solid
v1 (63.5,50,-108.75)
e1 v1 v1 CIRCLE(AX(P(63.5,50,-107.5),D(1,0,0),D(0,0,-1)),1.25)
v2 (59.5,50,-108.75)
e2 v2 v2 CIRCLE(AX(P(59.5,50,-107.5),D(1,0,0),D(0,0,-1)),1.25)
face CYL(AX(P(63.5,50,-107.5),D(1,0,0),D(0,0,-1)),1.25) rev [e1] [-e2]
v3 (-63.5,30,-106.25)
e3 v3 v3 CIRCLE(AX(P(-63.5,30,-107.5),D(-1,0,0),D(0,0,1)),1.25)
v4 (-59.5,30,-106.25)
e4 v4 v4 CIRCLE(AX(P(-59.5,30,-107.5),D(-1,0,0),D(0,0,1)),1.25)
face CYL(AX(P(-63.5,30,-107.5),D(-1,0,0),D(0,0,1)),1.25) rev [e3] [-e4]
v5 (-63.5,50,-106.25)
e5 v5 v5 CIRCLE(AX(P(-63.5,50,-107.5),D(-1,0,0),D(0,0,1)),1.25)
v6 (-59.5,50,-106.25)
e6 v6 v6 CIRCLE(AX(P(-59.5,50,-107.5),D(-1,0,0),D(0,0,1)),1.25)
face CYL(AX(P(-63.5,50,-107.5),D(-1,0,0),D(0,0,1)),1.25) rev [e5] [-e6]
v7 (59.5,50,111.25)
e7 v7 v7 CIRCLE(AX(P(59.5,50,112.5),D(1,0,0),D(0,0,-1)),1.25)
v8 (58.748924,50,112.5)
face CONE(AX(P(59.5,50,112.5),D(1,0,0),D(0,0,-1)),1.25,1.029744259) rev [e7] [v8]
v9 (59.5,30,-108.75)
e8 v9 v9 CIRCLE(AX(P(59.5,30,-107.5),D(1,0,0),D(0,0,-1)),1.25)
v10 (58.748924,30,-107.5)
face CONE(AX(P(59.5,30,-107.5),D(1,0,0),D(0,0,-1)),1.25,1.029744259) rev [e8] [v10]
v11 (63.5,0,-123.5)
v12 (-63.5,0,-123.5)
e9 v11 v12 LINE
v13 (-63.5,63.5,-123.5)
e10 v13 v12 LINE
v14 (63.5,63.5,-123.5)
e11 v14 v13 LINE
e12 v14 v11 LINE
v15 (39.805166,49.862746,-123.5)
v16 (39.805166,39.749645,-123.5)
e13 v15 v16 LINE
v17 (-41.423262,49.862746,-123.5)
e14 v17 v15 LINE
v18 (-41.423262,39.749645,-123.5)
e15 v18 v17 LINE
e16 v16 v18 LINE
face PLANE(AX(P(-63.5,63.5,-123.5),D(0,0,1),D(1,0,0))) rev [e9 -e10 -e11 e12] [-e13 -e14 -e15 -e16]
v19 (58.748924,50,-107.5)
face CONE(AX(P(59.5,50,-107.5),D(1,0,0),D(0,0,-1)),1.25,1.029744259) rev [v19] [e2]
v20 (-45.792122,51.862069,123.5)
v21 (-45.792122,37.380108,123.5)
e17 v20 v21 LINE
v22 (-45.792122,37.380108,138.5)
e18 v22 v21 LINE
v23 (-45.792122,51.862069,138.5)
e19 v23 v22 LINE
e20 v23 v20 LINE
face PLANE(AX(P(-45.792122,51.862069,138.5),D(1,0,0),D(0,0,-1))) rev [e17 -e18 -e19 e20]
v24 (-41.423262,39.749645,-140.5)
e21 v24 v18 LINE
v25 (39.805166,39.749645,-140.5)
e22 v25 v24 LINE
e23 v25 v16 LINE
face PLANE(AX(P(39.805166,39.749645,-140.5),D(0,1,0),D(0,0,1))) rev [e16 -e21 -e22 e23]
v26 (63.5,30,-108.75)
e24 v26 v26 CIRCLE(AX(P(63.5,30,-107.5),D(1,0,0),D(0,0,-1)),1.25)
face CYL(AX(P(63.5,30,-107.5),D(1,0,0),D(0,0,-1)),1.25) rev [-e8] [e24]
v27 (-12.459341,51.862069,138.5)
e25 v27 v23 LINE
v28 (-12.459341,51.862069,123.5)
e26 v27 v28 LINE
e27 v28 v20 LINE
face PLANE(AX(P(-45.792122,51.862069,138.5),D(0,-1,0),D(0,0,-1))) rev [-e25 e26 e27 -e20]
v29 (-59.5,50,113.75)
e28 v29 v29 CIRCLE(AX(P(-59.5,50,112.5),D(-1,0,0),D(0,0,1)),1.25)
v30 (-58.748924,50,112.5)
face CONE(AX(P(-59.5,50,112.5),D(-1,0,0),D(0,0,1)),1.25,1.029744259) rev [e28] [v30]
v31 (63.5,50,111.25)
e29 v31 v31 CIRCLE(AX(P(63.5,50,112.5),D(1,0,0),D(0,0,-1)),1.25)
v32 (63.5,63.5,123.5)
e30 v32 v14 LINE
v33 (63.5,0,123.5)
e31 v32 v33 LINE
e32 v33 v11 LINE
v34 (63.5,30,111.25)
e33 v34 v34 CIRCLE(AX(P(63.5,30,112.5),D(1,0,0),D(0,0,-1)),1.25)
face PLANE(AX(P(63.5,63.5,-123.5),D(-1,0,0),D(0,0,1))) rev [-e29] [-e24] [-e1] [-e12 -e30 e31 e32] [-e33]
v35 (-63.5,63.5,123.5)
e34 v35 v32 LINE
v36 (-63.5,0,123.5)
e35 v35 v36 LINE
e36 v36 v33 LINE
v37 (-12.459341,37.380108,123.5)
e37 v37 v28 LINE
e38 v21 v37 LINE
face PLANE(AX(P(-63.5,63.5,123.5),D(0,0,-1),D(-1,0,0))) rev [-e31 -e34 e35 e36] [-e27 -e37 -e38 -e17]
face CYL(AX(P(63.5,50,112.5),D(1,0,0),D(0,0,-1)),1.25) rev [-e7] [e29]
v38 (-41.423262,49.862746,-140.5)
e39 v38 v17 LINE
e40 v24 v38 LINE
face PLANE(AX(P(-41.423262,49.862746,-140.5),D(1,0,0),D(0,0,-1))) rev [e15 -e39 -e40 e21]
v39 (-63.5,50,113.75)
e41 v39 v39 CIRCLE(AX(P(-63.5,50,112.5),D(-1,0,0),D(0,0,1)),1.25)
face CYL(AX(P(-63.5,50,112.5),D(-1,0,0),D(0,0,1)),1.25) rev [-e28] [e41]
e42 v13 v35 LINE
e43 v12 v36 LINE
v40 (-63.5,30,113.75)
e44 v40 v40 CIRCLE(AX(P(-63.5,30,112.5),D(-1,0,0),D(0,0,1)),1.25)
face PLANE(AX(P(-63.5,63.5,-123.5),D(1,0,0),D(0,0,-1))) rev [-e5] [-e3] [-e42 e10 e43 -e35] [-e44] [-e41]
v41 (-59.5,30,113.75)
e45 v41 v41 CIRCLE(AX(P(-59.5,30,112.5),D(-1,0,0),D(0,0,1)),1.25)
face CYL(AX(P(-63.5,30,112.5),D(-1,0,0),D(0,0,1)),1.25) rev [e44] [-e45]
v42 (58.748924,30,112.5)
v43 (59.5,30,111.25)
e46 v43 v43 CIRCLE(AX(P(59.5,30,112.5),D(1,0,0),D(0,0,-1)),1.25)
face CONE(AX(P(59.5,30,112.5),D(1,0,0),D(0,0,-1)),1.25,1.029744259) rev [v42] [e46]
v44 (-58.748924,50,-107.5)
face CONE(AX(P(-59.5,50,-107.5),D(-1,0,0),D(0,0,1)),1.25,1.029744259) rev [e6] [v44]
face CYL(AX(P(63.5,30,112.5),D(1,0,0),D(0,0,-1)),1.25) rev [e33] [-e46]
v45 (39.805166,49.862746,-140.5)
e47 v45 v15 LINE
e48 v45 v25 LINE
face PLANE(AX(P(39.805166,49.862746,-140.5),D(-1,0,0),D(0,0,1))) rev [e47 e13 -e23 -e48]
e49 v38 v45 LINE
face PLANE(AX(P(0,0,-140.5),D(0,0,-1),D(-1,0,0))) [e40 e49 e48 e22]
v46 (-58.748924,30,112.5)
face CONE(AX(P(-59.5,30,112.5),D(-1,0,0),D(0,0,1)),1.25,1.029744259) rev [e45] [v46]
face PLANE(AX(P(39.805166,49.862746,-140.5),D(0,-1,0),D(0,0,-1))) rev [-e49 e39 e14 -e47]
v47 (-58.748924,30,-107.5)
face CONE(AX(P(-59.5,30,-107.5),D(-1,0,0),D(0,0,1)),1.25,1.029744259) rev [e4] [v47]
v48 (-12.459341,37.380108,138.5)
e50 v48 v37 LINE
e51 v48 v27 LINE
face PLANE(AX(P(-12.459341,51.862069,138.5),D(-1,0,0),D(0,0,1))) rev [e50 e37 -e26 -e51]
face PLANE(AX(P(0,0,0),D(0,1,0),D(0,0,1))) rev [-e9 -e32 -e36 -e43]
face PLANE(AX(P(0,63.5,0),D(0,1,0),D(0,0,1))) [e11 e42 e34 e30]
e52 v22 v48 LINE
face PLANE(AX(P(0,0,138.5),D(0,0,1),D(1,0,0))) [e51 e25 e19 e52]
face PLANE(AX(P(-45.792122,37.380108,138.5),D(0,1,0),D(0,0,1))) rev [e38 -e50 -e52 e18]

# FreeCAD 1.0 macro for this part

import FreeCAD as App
import Part
import Sketcher
from FreeCAD import Vector
Q = App.Units.Quantity

doc = App.newDocument("Part")
params = doc.addObject("Spreadsheet::Sheet", "Params")
for row, (alias, value) in enumerate([
    ("sketch1_width", "127 mm"),
    ("sketch1_height", "247 mm"),
    ("pad1_length", "63.5 mm"),
    ("sketch2_width", "4 mm"),
    ("sketch2_height", "1.25 mm"),
    ("groove_angle", "360 deg"),
    ("linearpattern_pitch", "220.90722 mm"),
    ("linearpattern2_pitch", "20 mm"),
    ("linearpattern3_pitch", "220 mm"),
    ("pad2_length", "15 mm"),
    ("pad3_length", "17 mm"),
    ("sketch5_width", "4 mm"),
    ("sketch5_height", "1.25 mm"),
    ("groove2_angle", "360 deg"),
    ("sketch6_width", "4 mm"),
    ("sketch6_height", "1.25 mm"),
    ("groove3_angle", "360 deg"),
    ("sketch7_width", "4 mm"),
    ("sketch7_height", "1.25 mm"),
    ("groove4_angle", "360 deg"),
], start=1):
    params.set(f"A{row}", alias)
    params.set(f"B{row}", "=" + value)
    params.setAlias(f"B{row}", alias)

body = doc.addObject("PartDesign::Body", "Body")

sketch1 = body.newObject("Sketcher::SketchObject", "Sketch")
sketch1.AttachmentSupport = (doc.getObject("XZ_Plane"), [""])
sketch1.MapMode = "FlatFace"
sketch1.addGeometry([
    Part.LineSegment(Vector(-64, -124, 0), Vector(-64, 124, 0)),
    Part.LineSegment(Vector(-64, 124, 0), Vector(64, 124, 0)),
    Part.LineSegment(Vector(64, 124, 0), Vector(64, -124, 0)),
    Part.LineSegment(Vector(64, -124, 0), Vector(-64, -124, 0)),
], False)
sketch1.addConstraint([
    Sketcher.Constraint("Coincident", 0, 2, 1, 1),
    Sketcher.Constraint("Coincident", 1, 2, 2, 1),
    Sketcher.Constraint("Coincident", 2, 2, 3, 1),
    Sketcher.Constraint("Coincident", 3, 2, 0, 1),
    Sketcher.Constraint("Vertical", 0),
    Sketcher.Constraint("Horizontal", 1),
    Sketcher.Constraint("Vertical", 2),
    Sketcher.Constraint("Horizontal", 3),
    Sketcher.Constraint("Symmetric", 0, 2, 2, 2, -1, 1),
    Sketcher.Constraint("DistanceX", 1, 1, 1, 2, 127.0),
    Sketcher.Constraint("DistanceY", 0, 1, 0, 2, 247.0),
])
sketch1.setExpression("Constraints[9]", "Params.sketch1_width")
sketch1.setExpression("Constraints[10]", "Params.sketch1_height")
pad1 = body.newObject("PartDesign::Pad", "Pad")
pad1.Profile = sketch1
pad1.setExpression("Length", "Params.pad1_length")
pad1.Reversed = True

sketch2 = body.newObject("Sketcher::SketchObject", "Sketch001")
sketch2.AttachmentSupport = (doc.getObject("XZ_Plane"), [""])
sketch2.MapMode = "FlatFace"
sketch2.AttachmentOffset = App.Placement(Vector(0, 0, -50), App.Rotation())
sketch2.addGeometry([
    Part.LineSegment(Vector(58.7, 112.5, 0), Vector(63.5, 112.5, 0)),
    Part.LineSegment(Vector(63.5, 112.5, 0), Vector(63.5, 111.2, 0)),
    Part.LineSegment(Vector(63.5, 111.2, 0), Vector(59.5, 111.2, 0)),
    Part.LineSegment(Vector(59.5, 111.2, 0), Vector(58.7, 112.5, 0)),
], False)
sketch2.addGeometry(Part.LineSegment(Vector(63.5, 112.5, 0), Vector(58.7, 112.5, 0)), True)
sketch2.addConstraint([
    Sketcher.Constraint("Coincident", 0, 2, 1, 1),
    Sketcher.Constraint("Coincident", 1, 2, 2, 1),
    Sketcher.Constraint("Coincident", 2, 2, 3, 1),
    Sketcher.Constraint("Coincident", 3, 2, 0, 1),
    Sketcher.Constraint("Horizontal", 0),
    Sketcher.Constraint("Vertical", 1),
    Sketcher.Constraint("Horizontal", 2),
    Sketcher.Constraint("Horizontal", 4),
    Sketcher.Constraint("Coincident", 4, 1, 0, 2),
    Sketcher.Constraint("Equal", 0, 4),
    Sketcher.Constraint("DistanceX", 2, 2, 2, 1, 4.0),
    Sketcher.Constraint("Angle", 3, Q("121 deg")),
    Sketcher.Constraint("DistanceY", 1, 2, 1, 1, 1.25),
    Sketcher.Constraint("DistanceX", -1, 1, 0, 2, 63.5),
    Sketcher.Constraint("DistanceY", -1, 1, 0, 2, 112.5),
])
sketch2.setExpression("Constraints[10]", "Params.sketch2_width")
sketch2.setExpression("Constraints[12]", "Params.sketch2_height")
groove = body.newObject("PartDesign::Groove", "Groove")
groove.Profile = sketch2
groove.ReferenceAxis = (sketch2, ["Axis0"])
groove.setExpression("Angle", "Params.groove_angle")
doc.recompute()

datumline = body.newObject("PartDesign::Line", "DatumLine")
datumline.Placement = App.Placement(Vector(0, 0, 0), App.Rotation(Vector(0, 0, 1), Vector(0, -0.090535746, -0.995893206)))
linearpattern = body.newObject("PartDesign::LinearPattern", "LinearPattern")
linearpattern.Originals = [groove]
linearpattern.Direction = (datumline, [""])
linearpattern.Mode = "offset"
linearpattern.setExpression("Offset", "Params.linearpattern_pitch")
linearpattern.Occurrences = 2
body.Tip = linearpattern
doc.recompute()

linearpattern2 = body.newObject("PartDesign::LinearPattern", "LinearPattern001")
linearpattern2.Originals = [groove]
linearpattern2.Direction = (doc.getObject("Y_Axis"), [""])
linearpattern2.Mode = "offset"
linearpattern2.setExpression("Offset", "Params.linearpattern2_pitch")
linearpattern2.Occurrences = 2
linearpattern2.Reversed = True
body.Tip = linearpattern2
doc.recompute()

linearpattern3 = body.newObject("PartDesign::LinearPattern", "LinearPattern002")
linearpattern3.Originals = [groove]
linearpattern3.Direction = (doc.getObject("Z_Axis"), [""])
linearpattern3.Mode = "offset"
linearpattern3.setExpression("Offset", "Params.linearpattern3_pitch")
linearpattern3.Occurrences = 2
linearpattern3.Reversed = True
body.Tip = linearpattern3

sketch3 = body.newObject("Sketcher::SketchObject", "Sketch002")
sketch3.AttachmentSupport = (doc.getObject("XY_Plane"), [""])
sketch3.MapMode = "FlatFace"
sketch3.AttachmentOffset = App.Placement(Vector(0, 0, 123.5), App.Rotation())
sketch3.addGeometry([
    Part.LineSegment(Vector(-46, 52, 0), Vector(-46, 37, 0)),
    Part.LineSegment(Vector(-46, 37, 0), Vector(-12, 37, 0)),
    Part.LineSegment(Vector(-12, 37, 0), Vector(-12, 52, 0)),
    Part.LineSegment(Vector(-12, 52, 0), Vector(-46, 52, 0)),
], False)
sketch3.addConstraint([
    Sketcher.Constraint("Coincident", 0, 2, 1, 1),
    Sketcher.Constraint("Coincident", 1, 2, 2, 1),
    Sketcher.Constraint("Coincident", 2, 2, 3, 1),
    Sketcher.Constraint("Coincident", 3, 2, 0, 1),
    Sketcher.Constraint("Vertical", 0),
    Sketcher.Constraint("Horizontal", 1),
    Sketcher.Constraint("Vertical", 2),
    Sketcher.Constraint("Horizontal", 3),
    Sketcher.Constraint("DistanceX", 1, 1, 1, 2, 33.332781),
    Sketcher.Constraint("DistanceY", 0, 2, 0, 1, 14.481961),
    Sketcher.Constraint("DistanceX", 0, 2, -1, 1, 45.792122),
    Sketcher.Constraint("DistanceY", -1, 1, 0, 2, 37.380108),
])
pad2 = body.newObject("PartDesign::Pad", "Pad001")
pad2.Profile = sketch3
pad2.setExpression("Length", "Params.pad2_length")

sketch4 = body.newObject("Sketcher::SketchObject", "Sketch003")
sketch4.AttachmentSupport = (doc.getObject("XY_Plane"), [""])
sketch4.MapMode = "FlatFace"
sketch4.AttachmentOffset = App.Placement(Vector(0, 0, -123.5), App.Rotation())
sketch4.addGeometry([
    Part.LineSegment(Vector(40, 50, 0), Vector(40, 40, 0)),
    Part.LineSegment(Vector(40, 40, 0), Vector(-41, 40, 0)),
    Part.LineSegment(Vector(-41, 40, 0), Vector(-41, 50, 0)),
    Part.LineSegment(Vector(-41, 50, 0), Vector(40, 50, 0)),
], False)
sketch4.addConstraint([
    Sketcher.Constraint("Coincident", 0, 2, 1, 1),
    Sketcher.Constraint("Coincident", 1, 2, 2, 1),
    Sketcher.Constraint("Coincident", 2, 2, 3, 1),
    Sketcher.Constraint("Coincident", 3, 2, 0, 1),
    Sketcher.Constraint("Vertical", 0),
    Sketcher.Constraint("Horizontal", 1),
    Sketcher.Constraint("Vertical", 2),
    Sketcher.Constraint("Horizontal", 3),
    Sketcher.Constraint("DistanceY", 0, 2, 0, 1, 10.113101),
    Sketcher.Constraint("DistanceX", 1, 2, 1, 1, 81.228428),
    Sketcher.Constraint("DistanceX", -1, 1, 0, 2, 39.805166),
    Sketcher.Constraint("DistanceY", -1, 1, 0, 2, 39.749645),
])
pad3 = body.newObject("PartDesign::Pad", "Pad002")
pad3.Profile = sketch4
pad3.setExpression("Length", "Params.pad3_length")
pad3.Reversed = True
doc.recompute()

mirrored = body.newObject("PartDesign::Mirrored", "Mirrored")
mirrored.Originals = [groove]
mirrored.MirrorPlane = (doc.getObject("YZ_Plane"), [""])
body.Tip = mirrored

sketch5 = body.newObject("Sketcher::SketchObject", "Sketch004")
sketch5.AttachmentSupport = (doc.getObject("XZ_Plane"), [""])
sketch5.MapMode = "FlatFace"
sketch5.AttachmentOffset = App.Placement(Vector(0, 0, -30), App.Rotation())
sketch5.addGeometry([
    Part.LineSegment(Vector(-63.5, -107.5, 0), Vector(-58.7, -107.5, 0)),
    Part.LineSegment(Vector(-58.7, -107.5, 0), Vector(-59.5, -108.8, 0)),
    Part.LineSegment(Vector(-59.5, -108.8, 0), Vector(-63.5, -108.8, 0)),
    Part.LineSegment(Vector(-63.5, -108.8, 0), Vector(-63.5, -107.5, 0)),
], False)
sketch5.addGeometry(Part.LineSegment(Vector(-58.7, -107.5, 0), Vector(-63.5, -107.5, 0)), True)
sketch5.addConstraint([
    Sketcher.Constraint("Coincident", 0, 2, 1, 1),
    Sketcher.Constraint("Coincident", 1, 2, 2, 1),
    Sketcher.Constraint("Coincident", 2, 2, 3, 1),
    Sketcher.Constraint("Coincident", 3, 2, 0, 1),
    Sketcher.Constraint("Horizontal", 0),
    Sketcher.Constraint("Horizontal", 2),
    Sketcher.Constraint("Vertical", 3),
    Sketcher.Constraint("Horizontal", 4),
    Sketcher.Constraint("Coincident", 4, 1, 0, 2),
    Sketcher.Constraint("Vertical", 2, 2, 4, 2),
    Sketcher.Constraint("DistanceX", 2, 2, 2, 1, 4.0),
    Sketcher.Constraint("Angle", 1, Q("-121 deg")),
    Sketcher.Constraint("DistanceY", 3, 1, 3, 2, 1.25),
    Sketcher.Constraint("DistanceY", 0, 2, -1, 1, 107.5),
    Sketcher.Constraint("DistanceX", 1, 2, -1, 1, 59.5),
])
sketch5.setExpression("Constraints[10]", "Params.sketch5_width")
sketch5.setExpression("Constraints[12]", "Params.sketch5_height")
groove2 = body.newObject("PartDesign::Groove", "Groove001")
groove2.Profile = sketch5
groove2.ReferenceAxis = (sketch5, ["Axis0"])
groove2.setExpression("Angle", "Params.groove2_angle")

sketch6 = body.newObject("Sketcher::SketchObject", "Sketch005")
sketch6.AttachmentSupport = (doc.getObject("XZ_Plane"), [""])
sketch6.MapMode = "FlatFace"
sketch6.AttachmentOffset = App.Placement(Vector(0, 0, -30), App.Rotation())
sketch6.addGeometry([
    Part.LineSegment(Vector(-63.5, 112.5, 0), Vector(-58.7, 112.5, 0)),
    Part.LineSegment(Vector(-58.7, 112.5, 0), Vector(-59.5, 111.2, 0)),
    Part.LineSegment(Vector(-59.5, 111.2, 0), Vector(-63.5, 111.2, 0)),
    Part.LineSegment(Vector(-63.5, 111.2, 0), Vector(-63.5, 112.5, 0)),
], False)
sketch6.addGeometry(Part.LineSegment(Vector(-58.7, 112.5, 0), Vector(-63.5, 112.5, 0)), True)
sketch6.addConstraint([
    Sketcher.Constraint("Coincident", 0, 2, 1, 1),
    Sketcher.Constraint("Coincident", 1, 2, 2, 1),
    Sketcher.Constraint("Coincident", 2, 2, 3, 1),
    Sketcher.Constraint("Coincident", 3, 2, 0, 1),
    Sketcher.Constraint("Horizontal", 0),
    Sketcher.Constraint("Horizontal", 2),
    Sketcher.Constraint("Vertical", 3),
    Sketcher.Constraint("Horizontal", 4),
    Sketcher.Constraint("Coincident", 4, 1, 0, 2),
    Sketcher.Constraint("Vertical", 2, 2, 4, 2),
    Sketcher.Constraint("DistanceX", 2, 2, 2, 1, 4.0),
    Sketcher.Constraint("Angle", 1, Q("-121 deg")),
    Sketcher.Constraint("DistanceY", 3, 1, 3, 2, 1.25),
    Sketcher.Constraint("DistanceY", -1, 1, 0, 2, 112.5),
    Sketcher.Constraint("DistanceX", 1, 2, -1, 1, 59.5),
])
sketch6.setExpression("Constraints[10]", "Params.sketch6_width")
sketch6.setExpression("Constraints[12]", "Params.sketch6_height")
groove3 = body.newObject("PartDesign::Groove", "Groove002")
groove3.Profile = sketch6
groove3.ReferenceAxis = (sketch6, ["Axis0"])
groove3.setExpression("Angle", "Params.groove3_angle")

sketch7 = body.newObject("Sketcher::SketchObject", "Sketch006")
sketch7.AttachmentSupport = (doc.getObject("XZ_Plane"), [""])
sketch7.MapMode = "FlatFace"
sketch7.AttachmentOffset = App.Placement(Vector(0, 0, -50), App.Rotation())
sketch7.addGeometry([
    Part.LineSegment(Vector(-63.5, -107.5, 0), Vector(-58.7, -107.5, 0)),
    Part.LineSegment(Vector(-58.7, -107.5, 0), Vector(-59.5, -108.8, 0)),
    Part.LineSegment(Vector(-59.5, -108.8, 0), Vector(-63.5, -108.8, 0)),
    Part.LineSegment(Vector(-63.5, -108.8, 0), Vector(-63.5, -107.5, 0)),
], False)
sketch7.addGeometry(Part.LineSegment(Vector(-58.7, -107.5, 0), Vector(-63.5, -107.5, 0)), True)
sketch7.addConstraint([
    Sketcher.Constraint("Coincident", 0, 2, 1, 1),
    Sketcher.Constraint("Coincident", 1, 2, 2, 1),
    Sketcher.Constraint("Coincident", 2, 2, 3, 1),
    Sketcher.Constraint("Coincident", 3, 2, 0, 1),
    Sketcher.Constraint("Horizontal", 0),
    Sketcher.Constraint("Horizontal", 2),
    Sketcher.Constraint("Vertical", 3),
    Sketcher.Constraint("Horizontal", 4),
    Sketcher.Constraint("Coincident", 4, 1, 0, 2),
    Sketcher.Constraint("Vertical", 2, 2, 4, 2),
    Sketcher.Constraint("DistanceX", 2, 2, 2, 1, 4.0),
    Sketcher.Constraint("Angle", 1, Q("-121 deg")),
    Sketcher.Constraint("DistanceY", 3, 1, 3, 2, 1.25),
    Sketcher.Constraint("DistanceY", 0, 2, -1, 1, 107.5),
    Sketcher.Constraint("DistanceX", 1, 2, -1, 1, 59.5),
])
sketch7.setExpression("Constraints[10]", "Params.sketch7_width")
sketch7.setExpression("Constraints[12]", "Params.sketch7_height")
groove4 = body.newObject("PartDesign::Groove", "Groove003")
groove4.Profile = sketch7
groove4.ReferenceAxis = (sketch7, ["Axis0"])
groove4.setExpression("Angle", "Params.groove4_angle")

doc.recompute()
